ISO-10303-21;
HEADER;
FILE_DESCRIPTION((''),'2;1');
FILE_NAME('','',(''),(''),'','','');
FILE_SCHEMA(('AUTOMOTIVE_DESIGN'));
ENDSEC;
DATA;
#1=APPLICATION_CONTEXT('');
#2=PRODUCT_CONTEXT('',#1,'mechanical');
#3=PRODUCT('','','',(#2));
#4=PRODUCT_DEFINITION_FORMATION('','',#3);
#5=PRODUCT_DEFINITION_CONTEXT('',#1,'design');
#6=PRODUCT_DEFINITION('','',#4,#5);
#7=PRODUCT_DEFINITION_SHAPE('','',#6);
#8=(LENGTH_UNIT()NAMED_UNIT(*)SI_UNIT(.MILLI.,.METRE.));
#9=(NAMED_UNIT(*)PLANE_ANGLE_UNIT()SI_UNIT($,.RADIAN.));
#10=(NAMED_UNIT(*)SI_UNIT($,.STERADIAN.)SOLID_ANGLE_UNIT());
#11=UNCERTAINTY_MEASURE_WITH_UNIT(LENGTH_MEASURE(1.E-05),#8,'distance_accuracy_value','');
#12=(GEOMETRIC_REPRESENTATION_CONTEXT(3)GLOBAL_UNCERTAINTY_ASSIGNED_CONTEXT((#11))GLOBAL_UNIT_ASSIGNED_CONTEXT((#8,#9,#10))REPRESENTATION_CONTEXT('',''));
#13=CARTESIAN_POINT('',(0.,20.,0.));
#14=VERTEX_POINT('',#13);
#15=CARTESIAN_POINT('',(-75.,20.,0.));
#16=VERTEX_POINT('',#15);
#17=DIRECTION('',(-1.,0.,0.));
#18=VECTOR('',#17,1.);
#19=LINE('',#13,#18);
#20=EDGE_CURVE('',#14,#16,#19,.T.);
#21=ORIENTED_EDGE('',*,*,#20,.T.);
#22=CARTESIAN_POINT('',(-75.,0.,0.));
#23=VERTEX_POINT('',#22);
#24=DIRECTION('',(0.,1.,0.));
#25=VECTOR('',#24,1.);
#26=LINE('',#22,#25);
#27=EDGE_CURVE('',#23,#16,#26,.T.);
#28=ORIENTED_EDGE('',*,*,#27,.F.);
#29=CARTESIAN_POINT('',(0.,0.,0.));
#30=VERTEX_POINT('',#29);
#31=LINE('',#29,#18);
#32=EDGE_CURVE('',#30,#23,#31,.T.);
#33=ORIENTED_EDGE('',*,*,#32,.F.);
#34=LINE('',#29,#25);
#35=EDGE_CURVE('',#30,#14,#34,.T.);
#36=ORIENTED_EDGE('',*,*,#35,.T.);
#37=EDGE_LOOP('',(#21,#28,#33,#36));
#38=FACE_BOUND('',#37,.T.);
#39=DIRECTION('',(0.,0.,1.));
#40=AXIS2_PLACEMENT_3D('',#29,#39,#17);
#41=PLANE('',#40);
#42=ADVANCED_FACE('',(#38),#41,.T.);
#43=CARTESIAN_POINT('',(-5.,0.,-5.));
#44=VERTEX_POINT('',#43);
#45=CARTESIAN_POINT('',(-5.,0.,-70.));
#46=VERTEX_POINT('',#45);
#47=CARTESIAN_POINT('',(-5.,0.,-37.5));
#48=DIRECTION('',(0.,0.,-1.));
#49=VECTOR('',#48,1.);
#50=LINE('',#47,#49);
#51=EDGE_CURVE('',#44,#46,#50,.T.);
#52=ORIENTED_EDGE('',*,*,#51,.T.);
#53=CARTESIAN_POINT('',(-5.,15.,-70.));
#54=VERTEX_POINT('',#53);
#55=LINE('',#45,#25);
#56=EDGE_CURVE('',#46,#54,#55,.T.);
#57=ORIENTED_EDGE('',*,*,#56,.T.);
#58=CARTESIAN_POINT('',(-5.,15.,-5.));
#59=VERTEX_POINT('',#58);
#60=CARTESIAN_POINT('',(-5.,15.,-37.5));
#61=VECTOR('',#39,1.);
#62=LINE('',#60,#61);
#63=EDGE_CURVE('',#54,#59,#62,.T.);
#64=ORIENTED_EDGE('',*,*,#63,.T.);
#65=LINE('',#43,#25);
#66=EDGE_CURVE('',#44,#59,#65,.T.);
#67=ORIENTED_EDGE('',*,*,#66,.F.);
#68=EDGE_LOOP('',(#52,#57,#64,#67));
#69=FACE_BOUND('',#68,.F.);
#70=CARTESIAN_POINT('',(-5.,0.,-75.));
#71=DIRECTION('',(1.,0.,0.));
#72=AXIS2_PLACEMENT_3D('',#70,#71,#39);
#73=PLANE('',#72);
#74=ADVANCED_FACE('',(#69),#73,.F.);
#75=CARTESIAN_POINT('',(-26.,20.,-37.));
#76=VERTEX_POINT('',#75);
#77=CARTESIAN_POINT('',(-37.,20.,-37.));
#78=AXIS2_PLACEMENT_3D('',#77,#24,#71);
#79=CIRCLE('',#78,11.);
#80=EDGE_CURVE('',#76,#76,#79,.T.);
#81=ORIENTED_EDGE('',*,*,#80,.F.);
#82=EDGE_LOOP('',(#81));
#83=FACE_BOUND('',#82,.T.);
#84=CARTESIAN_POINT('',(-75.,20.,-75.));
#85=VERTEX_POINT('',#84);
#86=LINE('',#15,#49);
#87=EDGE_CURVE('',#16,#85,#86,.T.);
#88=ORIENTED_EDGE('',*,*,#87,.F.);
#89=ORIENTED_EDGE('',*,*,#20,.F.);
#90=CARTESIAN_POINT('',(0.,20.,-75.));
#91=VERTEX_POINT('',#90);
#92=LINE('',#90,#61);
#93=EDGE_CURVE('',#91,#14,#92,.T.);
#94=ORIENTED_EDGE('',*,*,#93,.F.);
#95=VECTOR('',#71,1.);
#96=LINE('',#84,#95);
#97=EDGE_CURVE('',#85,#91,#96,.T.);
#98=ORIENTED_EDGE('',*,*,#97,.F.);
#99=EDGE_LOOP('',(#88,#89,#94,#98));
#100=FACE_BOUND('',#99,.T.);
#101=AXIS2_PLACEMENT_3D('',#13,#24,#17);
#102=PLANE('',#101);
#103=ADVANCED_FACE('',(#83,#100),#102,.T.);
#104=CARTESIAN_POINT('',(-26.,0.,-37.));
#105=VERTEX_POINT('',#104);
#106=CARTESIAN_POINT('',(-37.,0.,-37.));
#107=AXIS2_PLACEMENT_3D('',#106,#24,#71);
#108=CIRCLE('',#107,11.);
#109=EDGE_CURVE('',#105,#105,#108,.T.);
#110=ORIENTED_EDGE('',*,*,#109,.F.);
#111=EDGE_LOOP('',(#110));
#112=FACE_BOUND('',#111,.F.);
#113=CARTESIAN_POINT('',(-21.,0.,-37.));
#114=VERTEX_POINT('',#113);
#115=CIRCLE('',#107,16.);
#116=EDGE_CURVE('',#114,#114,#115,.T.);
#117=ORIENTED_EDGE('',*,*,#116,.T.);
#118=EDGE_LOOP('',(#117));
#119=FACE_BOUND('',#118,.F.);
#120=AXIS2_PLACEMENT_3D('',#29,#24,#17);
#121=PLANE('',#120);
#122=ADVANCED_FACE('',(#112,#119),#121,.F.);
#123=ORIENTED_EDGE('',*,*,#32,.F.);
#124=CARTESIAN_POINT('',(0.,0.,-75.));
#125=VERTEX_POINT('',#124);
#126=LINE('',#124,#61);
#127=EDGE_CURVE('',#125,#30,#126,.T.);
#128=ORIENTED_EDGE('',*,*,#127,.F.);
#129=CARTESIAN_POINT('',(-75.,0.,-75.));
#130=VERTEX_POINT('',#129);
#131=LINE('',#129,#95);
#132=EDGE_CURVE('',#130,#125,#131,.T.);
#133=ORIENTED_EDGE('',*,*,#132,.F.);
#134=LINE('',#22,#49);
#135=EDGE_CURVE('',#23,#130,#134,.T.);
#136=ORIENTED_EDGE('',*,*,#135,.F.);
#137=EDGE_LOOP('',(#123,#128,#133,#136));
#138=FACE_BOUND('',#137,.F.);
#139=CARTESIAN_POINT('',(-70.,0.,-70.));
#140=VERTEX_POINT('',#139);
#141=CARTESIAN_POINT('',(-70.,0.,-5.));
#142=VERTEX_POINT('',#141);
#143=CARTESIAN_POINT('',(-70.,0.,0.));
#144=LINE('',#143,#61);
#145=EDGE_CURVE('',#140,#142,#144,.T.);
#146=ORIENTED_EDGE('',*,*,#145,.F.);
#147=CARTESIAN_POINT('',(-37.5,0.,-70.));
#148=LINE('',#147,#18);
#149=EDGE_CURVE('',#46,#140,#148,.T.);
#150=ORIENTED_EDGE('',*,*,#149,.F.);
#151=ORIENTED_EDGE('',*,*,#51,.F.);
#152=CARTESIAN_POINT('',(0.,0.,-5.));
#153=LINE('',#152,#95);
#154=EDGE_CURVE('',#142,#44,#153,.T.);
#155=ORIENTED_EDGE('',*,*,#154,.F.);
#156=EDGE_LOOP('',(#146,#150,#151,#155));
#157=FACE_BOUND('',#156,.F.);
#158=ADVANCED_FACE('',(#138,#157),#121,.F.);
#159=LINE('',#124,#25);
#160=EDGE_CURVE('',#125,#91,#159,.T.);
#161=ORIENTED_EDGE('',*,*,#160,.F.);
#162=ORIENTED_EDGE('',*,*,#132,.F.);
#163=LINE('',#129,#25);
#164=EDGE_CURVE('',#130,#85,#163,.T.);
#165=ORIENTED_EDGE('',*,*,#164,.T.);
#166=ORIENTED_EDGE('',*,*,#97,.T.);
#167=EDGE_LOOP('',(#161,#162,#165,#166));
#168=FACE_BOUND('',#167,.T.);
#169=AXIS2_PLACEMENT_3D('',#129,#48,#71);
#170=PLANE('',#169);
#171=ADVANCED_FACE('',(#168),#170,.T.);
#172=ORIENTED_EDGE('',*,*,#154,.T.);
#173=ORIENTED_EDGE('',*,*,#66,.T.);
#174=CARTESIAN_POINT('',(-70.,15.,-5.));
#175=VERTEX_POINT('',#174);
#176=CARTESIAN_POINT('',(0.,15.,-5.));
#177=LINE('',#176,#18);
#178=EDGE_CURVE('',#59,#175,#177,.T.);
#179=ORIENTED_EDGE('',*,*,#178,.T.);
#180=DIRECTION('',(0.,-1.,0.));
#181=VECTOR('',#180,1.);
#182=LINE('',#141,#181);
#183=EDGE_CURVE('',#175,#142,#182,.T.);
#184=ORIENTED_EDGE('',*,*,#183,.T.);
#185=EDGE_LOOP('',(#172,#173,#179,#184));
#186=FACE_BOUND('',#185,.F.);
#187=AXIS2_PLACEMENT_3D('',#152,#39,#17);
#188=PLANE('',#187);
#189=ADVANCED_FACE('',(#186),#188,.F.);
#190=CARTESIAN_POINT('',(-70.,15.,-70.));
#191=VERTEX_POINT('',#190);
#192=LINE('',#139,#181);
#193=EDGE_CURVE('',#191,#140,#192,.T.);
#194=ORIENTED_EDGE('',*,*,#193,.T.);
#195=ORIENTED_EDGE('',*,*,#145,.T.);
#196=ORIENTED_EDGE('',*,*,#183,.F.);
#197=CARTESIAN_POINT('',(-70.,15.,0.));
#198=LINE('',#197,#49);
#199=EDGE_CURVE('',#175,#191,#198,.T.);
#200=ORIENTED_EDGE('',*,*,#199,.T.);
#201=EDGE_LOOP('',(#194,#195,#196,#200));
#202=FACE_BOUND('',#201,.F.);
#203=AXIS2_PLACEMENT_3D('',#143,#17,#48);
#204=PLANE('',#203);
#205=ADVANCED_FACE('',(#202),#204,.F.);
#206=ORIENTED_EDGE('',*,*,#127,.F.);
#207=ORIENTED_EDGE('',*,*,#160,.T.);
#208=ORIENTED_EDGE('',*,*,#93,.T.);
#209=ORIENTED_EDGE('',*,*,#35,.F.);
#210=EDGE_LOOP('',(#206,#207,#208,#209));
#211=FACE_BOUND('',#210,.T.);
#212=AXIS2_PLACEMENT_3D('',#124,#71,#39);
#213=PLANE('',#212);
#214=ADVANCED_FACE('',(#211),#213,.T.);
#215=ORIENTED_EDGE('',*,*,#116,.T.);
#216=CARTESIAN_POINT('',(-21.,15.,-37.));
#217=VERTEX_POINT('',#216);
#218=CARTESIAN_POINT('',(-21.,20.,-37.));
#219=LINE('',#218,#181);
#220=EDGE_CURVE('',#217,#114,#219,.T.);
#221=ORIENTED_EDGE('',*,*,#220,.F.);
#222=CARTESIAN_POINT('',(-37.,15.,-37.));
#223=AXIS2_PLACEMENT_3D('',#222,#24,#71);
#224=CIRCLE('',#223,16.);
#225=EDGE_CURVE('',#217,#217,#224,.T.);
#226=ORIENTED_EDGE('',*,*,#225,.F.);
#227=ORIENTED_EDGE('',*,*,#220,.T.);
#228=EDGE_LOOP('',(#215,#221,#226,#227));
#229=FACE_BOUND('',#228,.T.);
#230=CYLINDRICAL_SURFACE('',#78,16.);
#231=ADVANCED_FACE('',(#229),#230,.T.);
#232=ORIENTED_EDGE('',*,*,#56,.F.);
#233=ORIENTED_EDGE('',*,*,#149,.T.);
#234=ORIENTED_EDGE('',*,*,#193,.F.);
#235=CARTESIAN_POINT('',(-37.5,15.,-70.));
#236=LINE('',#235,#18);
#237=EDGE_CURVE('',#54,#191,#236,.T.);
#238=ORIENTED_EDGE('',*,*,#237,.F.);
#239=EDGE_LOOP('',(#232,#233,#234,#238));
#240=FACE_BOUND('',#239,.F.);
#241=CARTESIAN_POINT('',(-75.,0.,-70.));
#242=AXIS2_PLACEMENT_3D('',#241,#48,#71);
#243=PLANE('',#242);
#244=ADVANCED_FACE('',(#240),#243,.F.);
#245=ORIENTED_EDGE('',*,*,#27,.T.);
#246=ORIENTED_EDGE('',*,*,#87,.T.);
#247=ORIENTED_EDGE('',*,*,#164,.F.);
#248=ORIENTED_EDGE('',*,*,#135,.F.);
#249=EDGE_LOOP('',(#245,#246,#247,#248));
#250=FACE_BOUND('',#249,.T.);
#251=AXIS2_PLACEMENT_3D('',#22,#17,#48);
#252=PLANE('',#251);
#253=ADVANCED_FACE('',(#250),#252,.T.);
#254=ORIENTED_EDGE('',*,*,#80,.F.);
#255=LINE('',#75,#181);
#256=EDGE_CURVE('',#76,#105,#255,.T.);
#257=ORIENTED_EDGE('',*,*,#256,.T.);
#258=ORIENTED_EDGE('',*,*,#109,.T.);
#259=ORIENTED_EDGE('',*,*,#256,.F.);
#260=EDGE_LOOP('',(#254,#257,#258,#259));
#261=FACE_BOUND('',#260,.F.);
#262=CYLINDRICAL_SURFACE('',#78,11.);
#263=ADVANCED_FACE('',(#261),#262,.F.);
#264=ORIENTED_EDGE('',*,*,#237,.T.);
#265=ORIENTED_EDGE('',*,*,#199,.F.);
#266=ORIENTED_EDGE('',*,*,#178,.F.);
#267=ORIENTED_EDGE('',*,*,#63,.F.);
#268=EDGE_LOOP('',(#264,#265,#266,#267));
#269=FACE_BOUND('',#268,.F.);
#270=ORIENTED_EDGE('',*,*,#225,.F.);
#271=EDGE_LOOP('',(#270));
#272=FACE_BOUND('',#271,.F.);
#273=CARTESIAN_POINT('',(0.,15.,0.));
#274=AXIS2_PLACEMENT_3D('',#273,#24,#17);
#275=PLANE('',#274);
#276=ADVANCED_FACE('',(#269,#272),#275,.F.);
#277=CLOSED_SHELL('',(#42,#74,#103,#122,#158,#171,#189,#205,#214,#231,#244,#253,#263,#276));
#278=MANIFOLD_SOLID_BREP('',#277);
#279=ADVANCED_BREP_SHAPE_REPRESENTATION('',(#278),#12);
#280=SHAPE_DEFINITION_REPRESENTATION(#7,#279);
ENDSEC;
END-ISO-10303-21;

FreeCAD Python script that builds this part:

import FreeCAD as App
import Part
import Sketcher
Q = App.Units.Quantity


def faces_at(feature, points):
    """Names of the faces that lie closest to the given points."""
    faces = feature.Shape.Faces
    near = lambda p: min(range(len(faces)), key=lambda i: faces[i].distToShape(Part.Vertex(*p))[0])
    return sorted({f"Face{near(p) + 1}" for p in points})


def add_polygon(sketch, points):
    """Adds a closed chain of lines whose ends are joined by coincident constraints."""
    first, n = sketch.GeometryCount, len(points)
    for a, b in zip(points, points[1:] + points[:1]):
        sketch.addGeometry(Part.LineSegment(App.Vector(*a, 0), App.Vector(*b, 0)), False)
    for i in range(n):
        sketch.addConstraint(Sketcher.Constraint("Coincident", first + i, 2, first + (i + 1) % n, 1))

doc = App.newDocument("Part")
body = doc.addObject("PartDesign::Body", "Body")

# Sketch on XZ plane
sketch1 = doc.addObject("Sketcher::SketchObject", "Sketch")
body.addObject(sketch1)
sketch1.AttachmentSupport = (doc.XZ_Plane, [""])
sketch1.MapMode = "FlatFace"
add_polygon(sketch1, [(-75, 0), (0, 0), (0, -75), (-75, -75)])  # lines 0-3
sketch1.addConstraint(Sketcher.Constraint("Horizontal", 0))
sketch1.addConstraint(Sketcher.Constraint("Vertical", 1))
sketch1.addConstraint(Sketcher.Constraint("Horizontal", 2))
sketch1.addConstraint(Sketcher.Constraint("Vertical", 3))
sketch1.addConstraint(Sketcher.Constraint("Coincident", 0, 2, -1, 1))
sketch1.addConstraint(Sketcher.Constraint("Equal", 2, 1))
sketch1.addConstraint(Sketcher.Constraint("DistanceX", 0, 1, 0, 2, Q("75 mm")))
pad1 = doc.addObject("PartDesign::Pad", "Pad")
body.addObject(pad1)
pad1.Profile = sketch1
pad1.Length = 20
pad1.Reversed = True

# Sketch on XZ plane
sketch2 = doc.addObject("Sketcher::SketchObject", "Sketch001")
body.addObject(sketch2)
sketch2.AttachmentSupport = (doc.XZ_Plane, [""])
sketch2.MapMode = "FlatFace"
sketch2.AttachmentOffset = App.Placement(App.Vector(0, 0, -20), App.Rotation())
sketch2.addGeometry(Part.Circle(App.Vector(-37, -37, 0), App.Vector(0, 0, 1), 11), False)
sketch2.addConstraint(Sketcher.Constraint("Diameter", 0, Q("22 mm")))
sketch2.addConstraint(Sketcher.Constraint("DistanceX", 0, 3, -1, 1, Q("37 mm")))
sketch2.addConstraint(Sketcher.Constraint("DistanceY", 0, 3, -1, 1, Q("37 mm")))
pocket1 = doc.addObject("PartDesign::Pocket", "Pocket")
body.addObject(pocket1)
pocket1.Profile = sketch2
pocket1.Length = 39
pocket1.Reversed = True
doc.recompute()

thickness = doc.addObject("PartDesign::Thickness", "Thickness")
body.addObject(thickness)
thickness.Base = (pocket1, faces_at(pocket1, [(-37.775, 0, -65.973)]))
thickness.Value = 5
thickness.Reversed = True
thickness.Join = "Intersection"

doc.recompute()
